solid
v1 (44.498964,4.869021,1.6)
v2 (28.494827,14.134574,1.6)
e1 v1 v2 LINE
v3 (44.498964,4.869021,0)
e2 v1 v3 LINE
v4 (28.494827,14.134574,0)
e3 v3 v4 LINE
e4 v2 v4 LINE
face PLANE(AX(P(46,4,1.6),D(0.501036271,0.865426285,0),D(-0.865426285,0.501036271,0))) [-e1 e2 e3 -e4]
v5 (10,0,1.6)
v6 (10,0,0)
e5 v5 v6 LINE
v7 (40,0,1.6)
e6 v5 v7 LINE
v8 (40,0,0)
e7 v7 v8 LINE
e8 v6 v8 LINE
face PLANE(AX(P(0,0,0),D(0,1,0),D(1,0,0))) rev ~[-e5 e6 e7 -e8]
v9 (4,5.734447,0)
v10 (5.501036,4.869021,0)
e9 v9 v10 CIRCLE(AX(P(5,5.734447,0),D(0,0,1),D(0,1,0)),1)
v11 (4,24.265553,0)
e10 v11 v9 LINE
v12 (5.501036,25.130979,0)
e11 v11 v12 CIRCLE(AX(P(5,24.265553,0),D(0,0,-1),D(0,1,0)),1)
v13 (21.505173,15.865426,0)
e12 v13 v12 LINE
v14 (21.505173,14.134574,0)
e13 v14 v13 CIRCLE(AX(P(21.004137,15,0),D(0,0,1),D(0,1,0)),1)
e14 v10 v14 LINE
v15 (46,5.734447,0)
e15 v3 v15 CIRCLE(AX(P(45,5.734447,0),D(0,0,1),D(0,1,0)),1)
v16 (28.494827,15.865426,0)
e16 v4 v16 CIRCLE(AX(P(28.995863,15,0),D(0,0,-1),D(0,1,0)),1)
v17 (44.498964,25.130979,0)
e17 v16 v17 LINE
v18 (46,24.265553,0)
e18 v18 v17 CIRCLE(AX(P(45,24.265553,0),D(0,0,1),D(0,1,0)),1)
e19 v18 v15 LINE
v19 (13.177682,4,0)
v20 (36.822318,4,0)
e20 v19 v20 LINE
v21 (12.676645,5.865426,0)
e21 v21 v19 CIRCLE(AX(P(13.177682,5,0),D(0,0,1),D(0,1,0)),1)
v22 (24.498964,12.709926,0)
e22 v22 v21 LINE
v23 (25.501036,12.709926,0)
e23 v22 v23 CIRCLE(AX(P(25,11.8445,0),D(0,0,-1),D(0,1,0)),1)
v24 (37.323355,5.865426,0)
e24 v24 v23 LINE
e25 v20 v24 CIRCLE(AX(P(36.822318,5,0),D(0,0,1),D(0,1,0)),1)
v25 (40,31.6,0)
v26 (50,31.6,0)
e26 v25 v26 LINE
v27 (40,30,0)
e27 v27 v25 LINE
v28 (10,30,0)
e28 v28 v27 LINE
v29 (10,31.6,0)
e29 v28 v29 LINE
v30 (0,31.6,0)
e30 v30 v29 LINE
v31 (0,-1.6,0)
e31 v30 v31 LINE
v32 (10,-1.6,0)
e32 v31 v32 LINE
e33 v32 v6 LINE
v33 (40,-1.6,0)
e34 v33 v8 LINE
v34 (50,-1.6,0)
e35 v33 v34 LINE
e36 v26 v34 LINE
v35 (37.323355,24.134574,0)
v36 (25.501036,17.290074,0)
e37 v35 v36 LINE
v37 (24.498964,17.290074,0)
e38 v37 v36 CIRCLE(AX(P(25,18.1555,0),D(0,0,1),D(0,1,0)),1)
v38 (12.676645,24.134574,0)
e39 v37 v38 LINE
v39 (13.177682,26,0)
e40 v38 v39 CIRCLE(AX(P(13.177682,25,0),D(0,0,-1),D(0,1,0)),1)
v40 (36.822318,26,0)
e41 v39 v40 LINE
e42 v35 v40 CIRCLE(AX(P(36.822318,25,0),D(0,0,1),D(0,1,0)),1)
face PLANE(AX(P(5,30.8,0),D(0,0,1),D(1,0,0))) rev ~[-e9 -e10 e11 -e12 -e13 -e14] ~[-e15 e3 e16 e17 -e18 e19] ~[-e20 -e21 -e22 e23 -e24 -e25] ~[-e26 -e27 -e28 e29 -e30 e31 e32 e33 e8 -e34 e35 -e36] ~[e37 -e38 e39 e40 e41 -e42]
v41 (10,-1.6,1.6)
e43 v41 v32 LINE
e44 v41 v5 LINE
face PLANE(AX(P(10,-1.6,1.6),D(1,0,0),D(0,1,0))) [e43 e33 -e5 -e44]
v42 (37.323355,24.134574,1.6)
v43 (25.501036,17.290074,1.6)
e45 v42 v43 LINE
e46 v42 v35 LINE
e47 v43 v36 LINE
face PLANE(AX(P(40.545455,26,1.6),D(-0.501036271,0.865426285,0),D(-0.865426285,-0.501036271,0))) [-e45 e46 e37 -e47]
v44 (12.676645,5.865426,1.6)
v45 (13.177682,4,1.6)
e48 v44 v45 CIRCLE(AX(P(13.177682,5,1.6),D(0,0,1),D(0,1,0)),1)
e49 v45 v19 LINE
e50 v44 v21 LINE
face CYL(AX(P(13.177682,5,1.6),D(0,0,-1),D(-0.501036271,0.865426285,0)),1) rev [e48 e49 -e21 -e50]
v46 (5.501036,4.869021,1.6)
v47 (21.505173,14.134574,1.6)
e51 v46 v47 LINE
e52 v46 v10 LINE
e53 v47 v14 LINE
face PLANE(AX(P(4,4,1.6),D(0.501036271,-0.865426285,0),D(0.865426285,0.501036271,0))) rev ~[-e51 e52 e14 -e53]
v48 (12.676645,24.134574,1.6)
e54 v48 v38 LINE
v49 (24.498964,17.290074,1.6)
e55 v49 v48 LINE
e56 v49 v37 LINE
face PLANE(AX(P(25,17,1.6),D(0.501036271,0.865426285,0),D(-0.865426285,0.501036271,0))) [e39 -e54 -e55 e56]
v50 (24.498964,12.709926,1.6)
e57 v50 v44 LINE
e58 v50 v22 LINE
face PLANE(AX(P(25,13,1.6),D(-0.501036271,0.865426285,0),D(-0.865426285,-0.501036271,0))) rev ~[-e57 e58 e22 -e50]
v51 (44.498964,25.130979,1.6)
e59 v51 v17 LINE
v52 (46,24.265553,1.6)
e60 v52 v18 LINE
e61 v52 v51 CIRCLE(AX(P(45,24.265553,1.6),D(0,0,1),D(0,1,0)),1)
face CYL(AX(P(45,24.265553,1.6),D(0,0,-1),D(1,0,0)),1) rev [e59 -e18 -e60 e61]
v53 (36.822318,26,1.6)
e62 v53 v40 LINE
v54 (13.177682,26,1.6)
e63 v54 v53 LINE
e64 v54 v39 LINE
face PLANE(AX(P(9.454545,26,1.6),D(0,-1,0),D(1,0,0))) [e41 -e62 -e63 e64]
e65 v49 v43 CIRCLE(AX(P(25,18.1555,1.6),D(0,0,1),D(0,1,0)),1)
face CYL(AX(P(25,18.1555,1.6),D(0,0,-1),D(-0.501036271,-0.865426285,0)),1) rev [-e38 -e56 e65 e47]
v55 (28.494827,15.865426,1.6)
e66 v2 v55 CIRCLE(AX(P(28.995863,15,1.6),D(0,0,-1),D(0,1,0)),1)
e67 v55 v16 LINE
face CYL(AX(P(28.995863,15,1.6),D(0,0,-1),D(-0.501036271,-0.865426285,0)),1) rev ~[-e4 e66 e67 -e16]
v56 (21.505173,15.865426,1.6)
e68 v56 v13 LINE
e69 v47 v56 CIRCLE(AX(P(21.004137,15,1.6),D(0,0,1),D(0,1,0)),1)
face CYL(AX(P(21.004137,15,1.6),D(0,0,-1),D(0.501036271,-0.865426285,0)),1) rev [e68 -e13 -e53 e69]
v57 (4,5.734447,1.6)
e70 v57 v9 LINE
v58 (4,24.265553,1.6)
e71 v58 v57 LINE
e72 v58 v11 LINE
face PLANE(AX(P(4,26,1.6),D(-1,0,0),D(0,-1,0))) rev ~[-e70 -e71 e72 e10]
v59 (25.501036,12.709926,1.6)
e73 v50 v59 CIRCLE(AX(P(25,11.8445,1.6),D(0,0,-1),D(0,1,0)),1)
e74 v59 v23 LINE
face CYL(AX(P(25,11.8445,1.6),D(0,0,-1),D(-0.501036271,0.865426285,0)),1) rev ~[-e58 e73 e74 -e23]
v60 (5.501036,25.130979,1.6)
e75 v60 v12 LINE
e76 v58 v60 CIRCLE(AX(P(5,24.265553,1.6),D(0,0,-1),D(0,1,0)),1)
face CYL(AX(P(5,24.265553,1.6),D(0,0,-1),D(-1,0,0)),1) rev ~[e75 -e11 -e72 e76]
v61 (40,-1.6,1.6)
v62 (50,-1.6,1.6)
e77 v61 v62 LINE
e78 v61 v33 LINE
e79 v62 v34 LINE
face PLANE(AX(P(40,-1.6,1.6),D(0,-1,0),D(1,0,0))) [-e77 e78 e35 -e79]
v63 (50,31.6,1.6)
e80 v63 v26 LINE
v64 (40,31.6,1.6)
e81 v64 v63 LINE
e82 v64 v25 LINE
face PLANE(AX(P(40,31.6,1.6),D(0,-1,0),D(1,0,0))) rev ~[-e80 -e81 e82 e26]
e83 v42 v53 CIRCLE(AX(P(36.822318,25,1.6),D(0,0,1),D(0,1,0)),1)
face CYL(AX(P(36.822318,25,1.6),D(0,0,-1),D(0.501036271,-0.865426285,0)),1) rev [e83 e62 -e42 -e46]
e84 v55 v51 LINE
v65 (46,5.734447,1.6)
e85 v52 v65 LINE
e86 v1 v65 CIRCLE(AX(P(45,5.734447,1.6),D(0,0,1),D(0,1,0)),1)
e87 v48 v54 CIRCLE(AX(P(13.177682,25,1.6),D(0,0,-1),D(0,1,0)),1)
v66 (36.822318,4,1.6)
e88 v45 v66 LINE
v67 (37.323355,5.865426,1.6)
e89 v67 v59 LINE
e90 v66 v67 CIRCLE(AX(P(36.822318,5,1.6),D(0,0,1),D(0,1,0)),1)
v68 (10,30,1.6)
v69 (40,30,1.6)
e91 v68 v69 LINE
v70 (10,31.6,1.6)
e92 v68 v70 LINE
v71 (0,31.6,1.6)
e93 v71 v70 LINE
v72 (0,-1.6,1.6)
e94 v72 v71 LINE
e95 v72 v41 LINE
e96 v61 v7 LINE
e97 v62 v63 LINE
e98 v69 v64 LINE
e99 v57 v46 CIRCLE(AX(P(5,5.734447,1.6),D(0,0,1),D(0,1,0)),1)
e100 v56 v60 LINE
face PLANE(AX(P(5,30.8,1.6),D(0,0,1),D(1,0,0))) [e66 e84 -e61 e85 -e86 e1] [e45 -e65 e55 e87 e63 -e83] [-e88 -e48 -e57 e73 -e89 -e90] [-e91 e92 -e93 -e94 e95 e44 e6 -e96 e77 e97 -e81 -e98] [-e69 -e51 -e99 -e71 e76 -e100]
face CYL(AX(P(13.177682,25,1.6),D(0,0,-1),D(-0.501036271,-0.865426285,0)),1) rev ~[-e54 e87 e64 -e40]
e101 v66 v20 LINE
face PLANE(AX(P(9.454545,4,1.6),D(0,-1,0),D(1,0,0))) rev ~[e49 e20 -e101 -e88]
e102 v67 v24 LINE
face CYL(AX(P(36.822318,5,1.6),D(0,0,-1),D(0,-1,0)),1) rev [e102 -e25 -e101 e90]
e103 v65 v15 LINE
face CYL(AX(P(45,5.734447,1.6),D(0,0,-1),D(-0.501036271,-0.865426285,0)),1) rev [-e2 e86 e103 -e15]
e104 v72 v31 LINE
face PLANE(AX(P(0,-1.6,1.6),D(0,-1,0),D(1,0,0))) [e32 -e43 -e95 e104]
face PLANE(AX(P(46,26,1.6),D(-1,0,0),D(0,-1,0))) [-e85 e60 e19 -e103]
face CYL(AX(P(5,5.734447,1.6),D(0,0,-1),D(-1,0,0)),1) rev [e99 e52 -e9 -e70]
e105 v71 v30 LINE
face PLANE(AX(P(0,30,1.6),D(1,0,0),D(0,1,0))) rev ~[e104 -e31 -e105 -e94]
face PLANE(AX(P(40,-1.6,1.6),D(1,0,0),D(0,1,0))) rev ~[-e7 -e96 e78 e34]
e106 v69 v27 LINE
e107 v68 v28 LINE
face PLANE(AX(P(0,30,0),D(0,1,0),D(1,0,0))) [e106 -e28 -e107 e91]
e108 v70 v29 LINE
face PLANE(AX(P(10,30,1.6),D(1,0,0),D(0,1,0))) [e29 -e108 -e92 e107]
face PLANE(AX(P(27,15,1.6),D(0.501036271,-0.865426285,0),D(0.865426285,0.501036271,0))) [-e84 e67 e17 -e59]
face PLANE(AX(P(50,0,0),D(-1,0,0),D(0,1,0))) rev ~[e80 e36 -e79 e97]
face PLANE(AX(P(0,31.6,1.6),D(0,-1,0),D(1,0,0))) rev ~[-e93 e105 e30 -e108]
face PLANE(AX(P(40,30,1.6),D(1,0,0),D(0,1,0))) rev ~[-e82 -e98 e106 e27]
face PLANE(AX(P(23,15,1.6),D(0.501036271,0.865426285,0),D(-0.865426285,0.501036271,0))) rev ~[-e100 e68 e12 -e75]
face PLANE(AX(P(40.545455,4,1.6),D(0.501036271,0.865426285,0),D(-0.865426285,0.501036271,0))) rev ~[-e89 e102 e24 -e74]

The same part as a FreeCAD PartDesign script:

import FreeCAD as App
import Part
import Sketcher


def edges_at(feature, points):
    """Names of the edges that pass closest to the given points."""
    edges = feature.Shape.Edges
    near = lambda p: min(range(len(edges)), key=lambda i: edges[i].distToShape(Part.Vertex(*p))[0])
    return sorted({f"Edge{near(p) + 1}" for p in points})


def add_polygon(sketch, points):
    """Adds a closed chain of lines whose ends are joined by coincident constraints."""
    first, n = sketch.GeometryCount, len(points)
    for a, b in zip(points, points[1:] + points[:1]):
        sketch.addGeometry(Part.LineSegment(App.Vector(*a, 0), App.Vector(*b, 0)), False)
    for i in range(n):
        sketch.addConstraint(Sketcher.Constraint("Coincident", first + i, 2, first + (i + 1) % n, 1))

doc = App.newDocument("Part")
body = doc.addObject("PartDesign::Body", "Body")

# Sketch on XY plane
sketch1 = doc.addObject("Sketcher::SketchObject", "Sketch")
body.addObject(sketch1)
sketch1.AttachmentSupport = (doc.XY_Plane, [""])
sketch1.MapMode = "FlatFace"
add_polygon(sketch1, [(0, 30), (0, 0), (50, 0), (50, 30)])  # lines 0-3
sketch1.addConstraint([
    Sketcher.Constraint("Vertical", 0),
    Sketcher.Constraint("Horizontal", 1),
    Sketcher.Constraint("Vertical", 2),
    Sketcher.Constraint("Horizontal", 3),
    Sketcher.Constraint("Coincident", 0, 2, -1, 1),
    Sketcher.Constraint("DistanceX", 1, 1, 1, 2, 50.0),
    Sketcher.Constraint("DistanceY", 0, 2, 0, 1, 30.0),
])
pad1 = doc.addObject("PartDesign::Pad", "Pad")
body.addObject(pad1)
pad1.Profile = sketch1
pad1.Length = 1.6

# Sketch on XY plane
sketch2 = doc.addObject("Sketcher::SketchObject", "Sketch001")
body.addObject(sketch2)
sketch2.AttachmentSupport = (doc.XY_Plane, [""])
sketch2.MapMode = "FlatFace"
sketch2.AttachmentOffset = App.Placement(App.Vector(0, 0, 1.6), App.Rotation())
add_polygon(sketch2, [(0, 31.6), (0, 30), (10, 30), (10, 31.6)])  # lines 0-3
add_polygon(sketch2, [(40, 31.6), (40, 30), (50, 30), (50, 31.6)])  # lines 4-7
add_polygon(sketch2, [(40, 0), (40, -1.6), (50, -1.6), (50, 0)])  # lines 8-11
add_polygon(sketch2, [(0, 0), (0, -1.6), (10, -1.6), (10, 0)])  # lines 12-15
sketch2.addConstraint([
    Sketcher.Constraint("Vertical", 0),
    Sketcher.Constraint("Horizontal", 1),
    Sketcher.Constraint("Vertical", 2),
    Sketcher.Constraint("Horizontal", 3),
    Sketcher.Constraint("Vertical", 4),
    Sketcher.Constraint("Horizontal", 5),
    Sketcher.Constraint("Vertical", 6),
    Sketcher.Constraint("Horizontal", 7),
    Sketcher.Constraint("Vertical", 8),
    Sketcher.Constraint("Horizontal", 9),
    Sketcher.Constraint("Vertical", 10),
    Sketcher.Constraint("Horizontal", 11),
    Sketcher.Constraint("Vertical", 12),
    Sketcher.Constraint("Horizontal", 13),
    Sketcher.Constraint("Vertical", 14),
    Sketcher.Constraint("Horizontal", 15),
    Sketcher.Constraint("Coincident", 15, 2, -1, 1),
    Sketcher.Constraint("PointOnObject", 0, 2, -2),
    Sketcher.Constraint("PointOnObject", 10, 2, -1),
    Sketcher.Constraint("Horizontal", 1, 2, 4, 2),
    Sketcher.Constraint("Horizontal", 3, 2, 6, 2),
    Sketcher.Constraint("Horizontal", 9, 2, 12, 2),
    Sketcher.Constraint("Vertical", 7, 2, 8, 2),
    Sketcher.Constraint("Vertical", 6, 2, 9, 2),
    Sketcher.Constraint("Vertical", 2, 2, 13, 2),
    Sketcher.Constraint("Equal", 3, 5),
    Sketcher.Constraint("Equal", 6, 8),
    Sketcher.Constraint("DistanceX", 1, 1, 1, 2, 10.0),
    Sketcher.Constraint("DistanceY", 0, 2, 0, 1, 1.6),
    Sketcher.Constraint("DistanceY", -1, 1, 0, 2, 30.0),
    Sketcher.Constraint("DistanceX", -1, 1, 4, 2, 40.0),
])
pad2 = doc.addObject("PartDesign::Pad", "Pad001")
body.addObject(pad2)
pad2.Profile = sketch2
pad2.Length = 1.6
pad2.Reversed = True

# Sketch on XY plane
sketch3 = doc.addObject("Sketcher::SketchObject", "Sketch002")
body.addObject(sketch3)
sketch3.AttachmentSupport = (doc.XY_Plane, [""])
sketch3.MapMode = "FlatFace"
sketch3.AttachmentOffset = App.Placement(App.Vector(0, 0, 1.6), App.Rotation())
add_polygon(sketch3, [(4, 26), (4, 4), (23, 15)])  # lines 0-2
add_polygon(sketch3, [(41, 26), (9, 26), (25, 17)])  # lines 3-5
add_polygon(sketch3, [(25, 13), (9, 4), (41, 4)])  # lines 6-8
add_polygon(sketch3, [(46, 26), (27, 15), (46, 4)])  # lines 9-11
sketch3.addConstraint([
    Sketcher.Constraint("Vertical", 0),
    Sketcher.Constraint("Horizontal", 3),
    Sketcher.Constraint("Horizontal", 7),
    Sketcher.Constraint("Vertical", 11),
    Sketcher.Constraint("Parallel", 2, 4),
    Sketcher.Constraint("Parallel", 1, 5),
    Sketcher.Constraint("Parallel", 5, 6),
    Sketcher.Constraint("Parallel", 4, 8),
    Sketcher.Constraint("Parallel", 6, 9),
    Sketcher.Constraint("Parallel", 8, 10),
    Sketcher.Constraint("Horizontal", 2, 2, 3, 2),
    Sketcher.Constraint("Horizontal", 0, 2, 6, 2),
    Sketcher.Constraint("Horizontal", 1, 2, 9, 2),
    Sketcher.Constraint("Horizontal", 7, 2, 10, 2),
    Sketcher.Constraint("Horizontal", 5, 2, 11, 2),
    Sketcher.Constraint("Vertical", 3, 2, 6, 2),
    Sketcher.Constraint("Vertical", 5, 2, 7, 2),
    Sketcher.Constraint("DistanceY", 0, 2, 0, 1, 22.0),
    Sketcher.Constraint("DistanceX", -1, 1, 0, 2, 4.0),
    Sketcher.Constraint("DistanceY", -1, 1, 0, 2, 4.0),
    Sketcher.Constraint("DistanceX", -1, 1, 1, 2, 23.0),
    Sketcher.Constraint("DistanceX", -1, 1, 4, 2, 25.0),
    Sketcher.Constraint("DistanceY", -1, 1, 4, 2, 17.0),
    Sketcher.Constraint("DistanceX", -1, 1, 9, 2, 27.0),
])
pocket1 = doc.addObject("PartDesign::Pocket", "Pocket")
body.addObject(pocket1)
pocket1.Profile = sketch3
pocket1.Type = "ThroughAll"
doc.recompute()

fillet = doc.addObject("PartDesign::Fillet", "Fillet")
body.addObject(fillet)
fillet.Base = (pocket1, edges_at(pocket1, [
    (46, 4, 0.8),
    (27, 15, 0.8),
    (46, 26, 0.8),
    (25, 17, 0.8),
    (9.455, 26, 0.8),
    (40.545, 26, 0.8),
    (25, 13, 0.8),
    (40.545, 4, 0.8),
    (9.455, 4, 0.8),
    (4, 26, 0.8),
    (23, 15, 0.8),
    (4, 4, 0.8),
]))
fillet.Radius = 1

doc.recompute()
